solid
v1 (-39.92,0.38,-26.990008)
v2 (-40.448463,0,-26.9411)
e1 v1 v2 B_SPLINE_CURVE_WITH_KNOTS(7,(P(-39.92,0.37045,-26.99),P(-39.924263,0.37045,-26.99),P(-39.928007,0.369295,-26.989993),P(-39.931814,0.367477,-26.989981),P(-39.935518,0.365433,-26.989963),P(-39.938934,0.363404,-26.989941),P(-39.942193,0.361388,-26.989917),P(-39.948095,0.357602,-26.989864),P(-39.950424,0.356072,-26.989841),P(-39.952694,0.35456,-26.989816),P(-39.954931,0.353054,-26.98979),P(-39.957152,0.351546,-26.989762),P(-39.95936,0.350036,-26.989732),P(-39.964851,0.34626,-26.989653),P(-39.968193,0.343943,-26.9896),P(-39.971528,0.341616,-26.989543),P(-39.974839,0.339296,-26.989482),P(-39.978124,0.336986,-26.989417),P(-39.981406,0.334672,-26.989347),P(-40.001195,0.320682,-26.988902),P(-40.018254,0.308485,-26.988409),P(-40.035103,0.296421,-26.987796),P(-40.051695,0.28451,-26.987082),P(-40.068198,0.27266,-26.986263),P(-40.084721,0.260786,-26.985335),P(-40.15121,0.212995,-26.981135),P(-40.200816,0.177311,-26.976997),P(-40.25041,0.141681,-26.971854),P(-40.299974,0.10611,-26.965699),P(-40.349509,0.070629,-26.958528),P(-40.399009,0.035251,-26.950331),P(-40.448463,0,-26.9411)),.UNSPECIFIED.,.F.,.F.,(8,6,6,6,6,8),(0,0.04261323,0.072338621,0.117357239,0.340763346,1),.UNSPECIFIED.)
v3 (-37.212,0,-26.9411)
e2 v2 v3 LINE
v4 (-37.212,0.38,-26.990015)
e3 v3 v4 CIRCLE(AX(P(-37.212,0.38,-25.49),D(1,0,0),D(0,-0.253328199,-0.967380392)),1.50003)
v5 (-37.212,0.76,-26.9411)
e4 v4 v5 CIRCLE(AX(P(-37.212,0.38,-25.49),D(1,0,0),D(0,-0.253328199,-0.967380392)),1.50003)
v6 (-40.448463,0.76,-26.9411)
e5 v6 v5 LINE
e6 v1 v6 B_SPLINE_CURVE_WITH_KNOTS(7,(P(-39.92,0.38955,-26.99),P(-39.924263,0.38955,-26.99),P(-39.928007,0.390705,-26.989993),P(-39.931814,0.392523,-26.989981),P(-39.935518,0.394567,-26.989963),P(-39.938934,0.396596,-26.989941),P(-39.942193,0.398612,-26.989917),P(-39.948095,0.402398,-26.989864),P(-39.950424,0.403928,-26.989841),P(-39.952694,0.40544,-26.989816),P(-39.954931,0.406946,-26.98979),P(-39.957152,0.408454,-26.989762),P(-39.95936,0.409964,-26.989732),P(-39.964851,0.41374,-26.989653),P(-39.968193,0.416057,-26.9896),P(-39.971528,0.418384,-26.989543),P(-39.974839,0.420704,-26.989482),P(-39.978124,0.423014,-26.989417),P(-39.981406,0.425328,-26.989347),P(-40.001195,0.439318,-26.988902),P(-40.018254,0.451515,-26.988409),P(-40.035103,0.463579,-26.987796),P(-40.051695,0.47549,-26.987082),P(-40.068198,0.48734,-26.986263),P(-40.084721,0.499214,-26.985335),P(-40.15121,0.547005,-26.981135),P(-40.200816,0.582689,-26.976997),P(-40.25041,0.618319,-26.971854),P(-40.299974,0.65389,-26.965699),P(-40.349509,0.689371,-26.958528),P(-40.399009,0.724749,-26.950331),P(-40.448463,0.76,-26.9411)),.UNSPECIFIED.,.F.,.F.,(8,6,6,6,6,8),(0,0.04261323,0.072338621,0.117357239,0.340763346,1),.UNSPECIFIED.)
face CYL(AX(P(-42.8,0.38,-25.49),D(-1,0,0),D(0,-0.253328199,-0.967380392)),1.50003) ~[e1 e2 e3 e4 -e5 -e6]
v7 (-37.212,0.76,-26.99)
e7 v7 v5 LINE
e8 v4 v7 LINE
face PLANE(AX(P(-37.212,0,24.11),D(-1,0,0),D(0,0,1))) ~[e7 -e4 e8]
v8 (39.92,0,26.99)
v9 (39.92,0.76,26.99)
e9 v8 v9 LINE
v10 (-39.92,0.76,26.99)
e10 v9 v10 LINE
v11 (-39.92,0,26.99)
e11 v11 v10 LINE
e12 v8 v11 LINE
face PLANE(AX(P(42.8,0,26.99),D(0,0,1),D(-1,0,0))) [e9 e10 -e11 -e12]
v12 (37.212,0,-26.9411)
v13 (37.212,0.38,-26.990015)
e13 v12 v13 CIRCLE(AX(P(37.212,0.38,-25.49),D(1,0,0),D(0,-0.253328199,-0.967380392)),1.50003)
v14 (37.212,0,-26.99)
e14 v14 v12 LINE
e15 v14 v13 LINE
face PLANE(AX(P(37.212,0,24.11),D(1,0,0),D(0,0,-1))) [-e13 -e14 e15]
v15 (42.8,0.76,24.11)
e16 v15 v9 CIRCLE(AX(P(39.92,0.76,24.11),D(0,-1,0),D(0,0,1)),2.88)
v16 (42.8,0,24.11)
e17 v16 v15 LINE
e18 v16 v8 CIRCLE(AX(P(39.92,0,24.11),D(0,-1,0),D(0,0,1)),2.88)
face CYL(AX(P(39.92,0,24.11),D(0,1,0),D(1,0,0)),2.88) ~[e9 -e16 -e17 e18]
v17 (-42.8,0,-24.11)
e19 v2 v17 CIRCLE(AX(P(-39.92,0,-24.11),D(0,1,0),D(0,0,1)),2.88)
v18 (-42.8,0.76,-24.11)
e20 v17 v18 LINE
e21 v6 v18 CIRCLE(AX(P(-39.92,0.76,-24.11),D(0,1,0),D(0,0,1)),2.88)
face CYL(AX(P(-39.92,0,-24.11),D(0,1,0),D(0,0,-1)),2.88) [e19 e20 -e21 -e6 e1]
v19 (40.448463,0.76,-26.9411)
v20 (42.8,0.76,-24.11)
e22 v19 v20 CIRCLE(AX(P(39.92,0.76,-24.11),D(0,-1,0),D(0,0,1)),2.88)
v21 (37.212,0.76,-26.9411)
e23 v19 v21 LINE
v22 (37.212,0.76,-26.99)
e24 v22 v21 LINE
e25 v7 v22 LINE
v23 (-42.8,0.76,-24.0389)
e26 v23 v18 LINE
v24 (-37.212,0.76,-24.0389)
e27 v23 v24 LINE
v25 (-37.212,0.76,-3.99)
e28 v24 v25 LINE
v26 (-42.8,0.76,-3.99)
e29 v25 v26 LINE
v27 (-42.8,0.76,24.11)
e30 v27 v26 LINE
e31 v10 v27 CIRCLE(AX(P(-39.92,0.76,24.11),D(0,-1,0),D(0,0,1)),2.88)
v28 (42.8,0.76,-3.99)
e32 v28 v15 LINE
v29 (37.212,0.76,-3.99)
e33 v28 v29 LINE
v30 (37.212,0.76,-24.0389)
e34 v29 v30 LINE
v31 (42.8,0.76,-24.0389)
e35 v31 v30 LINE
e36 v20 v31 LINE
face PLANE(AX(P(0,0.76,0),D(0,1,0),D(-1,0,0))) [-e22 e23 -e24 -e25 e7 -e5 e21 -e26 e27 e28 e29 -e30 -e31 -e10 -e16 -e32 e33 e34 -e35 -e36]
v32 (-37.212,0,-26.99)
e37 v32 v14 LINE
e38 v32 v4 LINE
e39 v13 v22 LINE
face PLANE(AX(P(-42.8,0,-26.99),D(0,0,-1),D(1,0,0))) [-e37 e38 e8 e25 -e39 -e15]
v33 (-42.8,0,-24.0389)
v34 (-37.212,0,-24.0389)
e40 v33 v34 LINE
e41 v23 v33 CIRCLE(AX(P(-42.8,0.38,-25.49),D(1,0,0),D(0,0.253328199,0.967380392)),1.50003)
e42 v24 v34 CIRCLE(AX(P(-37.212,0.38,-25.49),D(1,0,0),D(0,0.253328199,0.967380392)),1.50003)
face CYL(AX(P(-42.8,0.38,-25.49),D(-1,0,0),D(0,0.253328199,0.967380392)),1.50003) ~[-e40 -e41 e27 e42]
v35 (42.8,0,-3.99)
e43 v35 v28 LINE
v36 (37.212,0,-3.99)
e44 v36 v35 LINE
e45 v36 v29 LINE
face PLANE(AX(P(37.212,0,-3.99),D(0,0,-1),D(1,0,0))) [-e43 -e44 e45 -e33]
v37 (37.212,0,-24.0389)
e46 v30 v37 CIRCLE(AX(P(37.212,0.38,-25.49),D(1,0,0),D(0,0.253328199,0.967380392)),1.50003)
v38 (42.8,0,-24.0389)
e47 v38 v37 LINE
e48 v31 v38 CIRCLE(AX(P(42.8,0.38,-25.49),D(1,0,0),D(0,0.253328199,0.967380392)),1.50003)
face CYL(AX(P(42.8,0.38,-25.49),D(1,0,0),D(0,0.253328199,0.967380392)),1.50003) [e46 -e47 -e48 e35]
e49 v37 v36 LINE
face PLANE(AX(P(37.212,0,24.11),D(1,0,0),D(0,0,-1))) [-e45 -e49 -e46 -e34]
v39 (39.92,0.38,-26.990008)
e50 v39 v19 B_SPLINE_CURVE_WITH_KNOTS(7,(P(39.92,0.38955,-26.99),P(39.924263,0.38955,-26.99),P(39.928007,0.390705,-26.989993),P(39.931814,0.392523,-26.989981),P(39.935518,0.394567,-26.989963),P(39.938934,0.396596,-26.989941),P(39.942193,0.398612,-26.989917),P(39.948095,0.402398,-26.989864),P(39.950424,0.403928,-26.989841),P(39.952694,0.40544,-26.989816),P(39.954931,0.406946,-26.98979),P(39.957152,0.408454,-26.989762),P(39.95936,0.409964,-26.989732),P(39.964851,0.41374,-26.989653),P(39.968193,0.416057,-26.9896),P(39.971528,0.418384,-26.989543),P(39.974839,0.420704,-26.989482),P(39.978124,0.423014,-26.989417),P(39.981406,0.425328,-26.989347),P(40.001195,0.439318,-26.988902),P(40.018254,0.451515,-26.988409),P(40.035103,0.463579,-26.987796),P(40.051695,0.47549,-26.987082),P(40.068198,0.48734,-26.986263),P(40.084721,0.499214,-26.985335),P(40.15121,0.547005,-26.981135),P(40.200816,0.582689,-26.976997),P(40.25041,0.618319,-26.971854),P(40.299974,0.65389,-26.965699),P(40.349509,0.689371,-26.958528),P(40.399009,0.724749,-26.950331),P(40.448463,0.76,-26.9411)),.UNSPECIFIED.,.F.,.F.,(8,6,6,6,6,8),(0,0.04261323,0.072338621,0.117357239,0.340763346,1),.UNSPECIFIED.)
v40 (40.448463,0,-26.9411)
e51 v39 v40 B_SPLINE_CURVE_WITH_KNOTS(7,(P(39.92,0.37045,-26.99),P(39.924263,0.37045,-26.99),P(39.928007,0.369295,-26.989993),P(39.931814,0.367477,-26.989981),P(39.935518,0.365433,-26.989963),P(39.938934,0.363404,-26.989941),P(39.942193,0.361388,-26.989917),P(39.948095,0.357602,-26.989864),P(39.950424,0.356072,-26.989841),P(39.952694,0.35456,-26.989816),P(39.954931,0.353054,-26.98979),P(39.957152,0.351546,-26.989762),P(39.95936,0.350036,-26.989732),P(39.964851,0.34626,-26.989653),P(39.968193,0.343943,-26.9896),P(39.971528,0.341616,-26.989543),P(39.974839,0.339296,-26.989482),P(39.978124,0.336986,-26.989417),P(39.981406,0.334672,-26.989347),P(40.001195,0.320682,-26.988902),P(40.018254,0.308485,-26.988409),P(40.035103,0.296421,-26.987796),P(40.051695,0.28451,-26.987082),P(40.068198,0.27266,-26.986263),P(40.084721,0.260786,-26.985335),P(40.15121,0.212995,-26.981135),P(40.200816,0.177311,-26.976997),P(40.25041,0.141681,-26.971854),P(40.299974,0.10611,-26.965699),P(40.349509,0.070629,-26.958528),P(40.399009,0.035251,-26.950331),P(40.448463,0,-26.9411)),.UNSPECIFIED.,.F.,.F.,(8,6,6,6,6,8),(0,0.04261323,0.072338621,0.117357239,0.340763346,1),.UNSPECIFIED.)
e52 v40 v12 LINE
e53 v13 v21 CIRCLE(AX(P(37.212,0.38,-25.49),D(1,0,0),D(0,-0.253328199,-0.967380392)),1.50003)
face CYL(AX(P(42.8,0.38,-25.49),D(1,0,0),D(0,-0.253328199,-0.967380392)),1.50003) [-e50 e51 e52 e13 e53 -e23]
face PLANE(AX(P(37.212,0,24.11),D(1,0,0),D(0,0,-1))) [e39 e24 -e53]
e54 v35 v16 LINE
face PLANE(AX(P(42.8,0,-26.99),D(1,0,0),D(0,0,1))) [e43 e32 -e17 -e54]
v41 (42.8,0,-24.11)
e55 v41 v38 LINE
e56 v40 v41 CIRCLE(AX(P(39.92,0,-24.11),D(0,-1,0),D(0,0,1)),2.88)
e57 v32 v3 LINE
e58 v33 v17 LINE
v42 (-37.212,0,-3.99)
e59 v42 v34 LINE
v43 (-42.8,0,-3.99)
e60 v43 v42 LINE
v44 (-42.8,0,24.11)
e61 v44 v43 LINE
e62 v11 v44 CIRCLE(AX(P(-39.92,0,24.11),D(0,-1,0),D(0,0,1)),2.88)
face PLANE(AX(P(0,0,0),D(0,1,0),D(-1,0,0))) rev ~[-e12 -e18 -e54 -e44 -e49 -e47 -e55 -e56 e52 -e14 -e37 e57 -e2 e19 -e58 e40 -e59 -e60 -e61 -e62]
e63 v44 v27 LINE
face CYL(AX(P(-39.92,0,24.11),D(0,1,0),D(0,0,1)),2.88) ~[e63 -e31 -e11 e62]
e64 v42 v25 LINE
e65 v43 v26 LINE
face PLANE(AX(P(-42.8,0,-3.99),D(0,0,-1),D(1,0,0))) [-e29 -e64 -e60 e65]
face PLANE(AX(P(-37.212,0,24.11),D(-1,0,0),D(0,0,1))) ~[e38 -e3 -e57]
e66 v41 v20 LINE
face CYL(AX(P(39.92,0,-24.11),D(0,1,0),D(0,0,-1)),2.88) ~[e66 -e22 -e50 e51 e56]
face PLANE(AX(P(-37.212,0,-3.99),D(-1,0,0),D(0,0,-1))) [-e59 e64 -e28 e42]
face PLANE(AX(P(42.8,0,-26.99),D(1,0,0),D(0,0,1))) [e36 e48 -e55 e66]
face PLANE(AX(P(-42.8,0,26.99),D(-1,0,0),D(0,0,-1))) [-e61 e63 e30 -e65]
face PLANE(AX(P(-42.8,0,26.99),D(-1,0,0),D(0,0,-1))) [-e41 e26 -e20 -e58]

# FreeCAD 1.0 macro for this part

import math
import FreeCAD as App
import Part
import Sketcher
from FreeCAD import Vector
Q = App.Units.Quantity


def edges_at(feature, points):
    """Names of the edges that pass closest to the given points."""
    edges = feature.Shape.Edges
    near = lambda p: min(range(len(edges)), key=lambda i: edges[i].distToShape(Part.Vertex(*p))[0])
    return sorted({f"Edge{near(p) + 1}" for p in points})


def add_polygon(sketch, points):
    """Adds a closed chain of lines whose ends are joined by coincident constraints."""
    first, n = sketch.GeometryCount, len(points)
    for a, b in zip(points, points[1:] + points[:1]):
        sketch.addGeometry(Part.LineSegment(App.Vector(*a, 0), App.Vector(*b, 0)), False)
    for i in range(n):
        sketch.addConstraint(Sketcher.Constraint("Coincident", first + i, 2, first + (i + 1) % n, 1))

doc = App.newDocument("Part")
params = doc.addObject("Spreadsheet::Sheet", "Params")
for row, (alias, value) in enumerate([
    ("sketch1_width", "85.6 mm"),
    ("sketch1_height", "53.98 mm"),
    ("pad1_length", "0.76 mm"),
    ("fillet_radius", "2.88 mm"),
    ("sketch2_height", "20 mm"),
    ("sketch3_radius", "1.5 mm"),
    ("pocket2_length", "5.588 mm"),
], start=1):
    params.set(f"A{row}", alias)
    params.set(f"B{row}", "=" + value)
    params.setAlias(f"B{row}", alias)

body = doc.addObject("PartDesign::Body", "Body")

# Sketch on XZ plane
sketch1 = body.newObject("Sketcher::SketchObject", "Sketch")
sketch1.AttachmentSupport = (doc.getObject("XZ_Plane"), [""])
sketch1.MapMode = "FlatFace"
add_polygon(sketch1, [(43, -27), (-43, -27), (-43, 27), (43, 27)])  # lines 0-3
sketch1.addConstraint(Sketcher.Constraint("Horizontal", 0))
sketch1.addConstraint(Sketcher.Constraint("Vertical", 1))
sketch1.addConstraint(Sketcher.Constraint("Horizontal", 2))
sketch1.addConstraint(Sketcher.Constraint("Vertical", 3))
sketch1.addConstraint(Sketcher.Constraint("Symmetric", 0, 2, 2, 2, -1, 1))
sketch1.addConstraint(Sketcher.Constraint("DistanceX", 0, 2, 0, 1, Q("85.6 mm")))
sketch1.addConstraint(Sketcher.Constraint("DistanceY", 1, 1, 1, 2, Q("53.98 mm")))
sketch1.setExpression("Constraints[9]", "Params.sketch1_width")
sketch1.setExpression("Constraints[10]", "Params.sketch1_height")
pad1 = body.newObject("PartDesign::Pad", "Pad")
pad1.Profile = sketch1
pad1.setExpression("Length", "Params.pad1_length")
pad1.Reversed = True
doc.recompute()

fillet = body.newObject("PartDesign::Fillet", "Fillet")
fillet.Base = (pad1, edges_at(pad1, [
    (42.8, 0.38, 26.99),
    (42.8, 0.38, -26.99),
    (-42.8, 0.38, 26.99),
    (-42.8, 0.38, -26.99),
]))
fillet.setExpression("Radius", "Params.fillet_radius")

# Sketch on XZ plane
sketch2 = body.newObject("Sketcher::SketchObject", "Sketch001")
sketch2.AttachmentSupport = (doc.getObject("XZ_Plane"), [""])
sketch2.MapMode = "FlatFace"
add_polygon(sketch2, [(-43, -4), (-43, -24), (-37, -24), (-37, -4)])  # lines 0-3
add_polygon(sketch2, [(37, -24), (43, -24), (43, -4), (37, -4)])  # lines 4-7
sketch2.addConstraint(Sketcher.Constraint("Vertical", 0))
sketch2.addConstraint(Sketcher.Constraint("Horizontal", 1))
sketch2.addConstraint(Sketcher.Constraint("Vertical", 2))
sketch2.addConstraint(Sketcher.Constraint("Horizontal", 3))
sketch2.addConstraint(Sketcher.Constraint("Horizontal", 4))
sketch2.addConstraint(Sketcher.Constraint("Vertical", 5))
sketch2.addConstraint(Sketcher.Constraint("Horizontal", 6))
sketch2.addConstraint(Sketcher.Constraint("Vertical", 7))
sketch2.addConstraint(Sketcher.Constraint("Symmetric", 0, 2, 4, 2, -2))
sketch2.addConstraint(Sketcher.Constraint("Symmetric", 2, 2, 6, 2, -2))
sketch2.addConstraint(Sketcher.Constraint("DistanceY", 0, 2, 0, 1, Q("20 mm")))
sketch2.addConstraint(Sketcher.Constraint("DistanceX", 1, 1, 1, 2, Q("5.588 mm")))
sketch2.addConstraint(Sketcher.Constraint("DistanceX", 0, 2, -1, 1, Q("42.8 mm")))
sketch2.addConstraint(Sketcher.Constraint("DistanceY", 0, 2, -1, 1, Q("23.99 mm")))
sketch2.setExpression("Constraints[18]", "Params.sketch2_height")
pocket1 = body.newObject("PartDesign::Pocket", "Pocket")
pocket1.Profile = sketch2
pocket1.Type = "ThroughAll"

# Sketch on YZ plane
sketch3 = body.newObject("Sketcher::SketchObject", "Sketch002")
sketch3.AttachmentSupport = (doc.getObject("YZ_Plane"), [""])
sketch3.MapMode = "FlatFace"
sketch3.AttachmentOffset = App.Placement(Vector(0, 0, 42.8), App.Rotation())
sketch3.addGeometry(Part.LineSegment(Vector(0, -26.941, 0), Vector(0, -26.99, 0)), False)
sketch3.addGeometry(Part.LineSegment(Vector(0, -26.99, 0), Vector(0.38, -26.99, 0)), False)
sketch3.addGeometry(Part.ArcOfCircle(Part.Circle(Vector(0.38, -25.49, 0), Vector(0, 0, 1), 1.5), math.radians(-104.67), math.radians(-90)), False)
sketch3.addGeometry(Part.ArcOfCircle(Part.Circle(Vector(0.38, -25.49, 0), Vector(0, 0, 1), 1.5), math.radians(-90), math.radians(-75.33)), False)
sketch3.addGeometry(Part.LineSegment(Vector(0.38, -26.99, 0), Vector(0.76, -26.99, 0)), False)
sketch3.addGeometry(Part.LineSegment(Vector(0.76, -26.99, 0), Vector(0.76, -26.941, 0)), False)
sketch3.addGeometry(Part.LineSegment(Vector(0.76, -24.039, 0), Vector(0.76, -23.99, 0)), False)
sketch3.addGeometry(Part.LineSegment(Vector(0.76, -23.99, 0), Vector(0.38, -23.99, 0)), False)
sketch3.addGeometry(Part.ArcOfCircle(Part.Circle(Vector(0.38, -25.49, 0), Vector(0, 0, 1), 1.5), math.radians(75.33), math.radians(90)), False)
sketch3.addGeometry(Part.ArcOfCircle(Part.Circle(Vector(0.38, -25.49, 0), Vector(0, 0, 1), 1.5), math.radians(90), math.radians(104.67)), False)
sketch3.addGeometry(Part.LineSegment(Vector(0.38, -23.99, 0), Vector(0, -23.99, 0)), False)
sketch3.addGeometry(Part.LineSegment(Vector(0, -23.99, 0), Vector(0, -24.039, 0)), False)
sketch3.addConstraint(Sketcher.Constraint("Coincident", 0, 2, 1, 1))
sketch3.addConstraint(Sketcher.Constraint("Tangent", 1, 2, 2, 2))
sketch3.addConstraint(Sketcher.Constraint("Coincident", 2, 1, 0, 1))
sketch3.addConstraint(Sketcher.Constraint("Tangent", 3, 1, 4, 1))
sketch3.addConstraint(Sketcher.Constraint("Coincident", 4, 2, 5, 1))
sketch3.addConstraint(Sketcher.Constraint("Coincident", 5, 2, 3, 2))
sketch3.addConstraint(Sketcher.Constraint("Coincident", 6, 2, 7, 1))
sketch3.addConstraint(Sketcher.Constraint("Tangent", 7, 2, 8, 2))
sketch3.addConstraint(Sketcher.Constraint("Coincident", 8, 1, 6, 1))
sketch3.addConstraint(Sketcher.Constraint("Tangent", 9, 1, 10, 1))
sketch3.addConstraint(Sketcher.Constraint("Coincident", 10, 2, 11, 1))
sketch3.addConstraint(Sketcher.Constraint("Coincident", 11, 2, 9, 2))
sketch3.addConstraint(Sketcher.Constraint("Vertical", 0))
sketch3.addConstraint(Sketcher.Constraint("Horizontal", 1))
sketch3.addConstraint(Sketcher.Constraint("Horizontal", 4))
sketch3.addConstraint(Sketcher.Constraint("Vertical", 5))
sketch3.addConstraint(Sketcher.Constraint("Vertical", 6))
sketch3.addConstraint(Sketcher.Constraint("Horizontal", 7))
sketch3.addConstraint(Sketcher.Constraint("Horizontal", 10))
sketch3.addConstraint(Sketcher.Constraint("Vertical", 11))
sketch3.addConstraint(Sketcher.Constraint("Coincident", 3, 3, 2, 3))
sketch3.addConstraint(Sketcher.Constraint("Coincident", 8, 3, 2, 3))
sketch3.addConstraint(Sketcher.Constraint("Coincident", 9, 3, 2, 3))
sketch3.addConstraint(Sketcher.Constraint("Equal", 2, 3))
sketch3.addConstraint(Sketcher.Constraint("Equal", 3, 8))
sketch3.addConstraint(Sketcher.Constraint("Equal", 8, 9))
sketch3.addConstraint(Sketcher.Constraint("PointOnObject", 0, 2, -2))
sketch3.addConstraint(Sketcher.Constraint("PointOnObject", 10, 2, -2))
sketch3.addConstraint(Sketcher.Constraint("Horizontal", 2, 1, 5, 2))
sketch3.addConstraint(Sketcher.Constraint("Horizontal", 8, 1, 11, 2))
sketch3.addConstraint(Sketcher.Constraint("Radius", 2, Q("1.5 mm")))
sketch3.addConstraint(Sketcher.Constraint("DistanceX", -1, 1, 4, 2, Q("0.76 mm")))
sketch3.addConstraint(Sketcher.Constraint("DistanceY", 2, 3, -1, 1, Q("25.49 mm")))
sketch3.setExpression("Constraints[30]", "Params.sketch3_radius")
pocket2 = body.newObject("PartDesign::Pocket", "Pocket001")
pocket2.Profile = sketch3
pocket2.setExpression("Length", "Params.pocket2_length")
doc.recompute()

mirrored = body.newObject("PartDesign::Mirrored", "Mirrored")
mirrored.Originals = [pocket2]
mirrored.MirrorPlane = (doc.getObject("YZ_Plane"), [""])
body.Tip = mirrored

doc.recompute()
